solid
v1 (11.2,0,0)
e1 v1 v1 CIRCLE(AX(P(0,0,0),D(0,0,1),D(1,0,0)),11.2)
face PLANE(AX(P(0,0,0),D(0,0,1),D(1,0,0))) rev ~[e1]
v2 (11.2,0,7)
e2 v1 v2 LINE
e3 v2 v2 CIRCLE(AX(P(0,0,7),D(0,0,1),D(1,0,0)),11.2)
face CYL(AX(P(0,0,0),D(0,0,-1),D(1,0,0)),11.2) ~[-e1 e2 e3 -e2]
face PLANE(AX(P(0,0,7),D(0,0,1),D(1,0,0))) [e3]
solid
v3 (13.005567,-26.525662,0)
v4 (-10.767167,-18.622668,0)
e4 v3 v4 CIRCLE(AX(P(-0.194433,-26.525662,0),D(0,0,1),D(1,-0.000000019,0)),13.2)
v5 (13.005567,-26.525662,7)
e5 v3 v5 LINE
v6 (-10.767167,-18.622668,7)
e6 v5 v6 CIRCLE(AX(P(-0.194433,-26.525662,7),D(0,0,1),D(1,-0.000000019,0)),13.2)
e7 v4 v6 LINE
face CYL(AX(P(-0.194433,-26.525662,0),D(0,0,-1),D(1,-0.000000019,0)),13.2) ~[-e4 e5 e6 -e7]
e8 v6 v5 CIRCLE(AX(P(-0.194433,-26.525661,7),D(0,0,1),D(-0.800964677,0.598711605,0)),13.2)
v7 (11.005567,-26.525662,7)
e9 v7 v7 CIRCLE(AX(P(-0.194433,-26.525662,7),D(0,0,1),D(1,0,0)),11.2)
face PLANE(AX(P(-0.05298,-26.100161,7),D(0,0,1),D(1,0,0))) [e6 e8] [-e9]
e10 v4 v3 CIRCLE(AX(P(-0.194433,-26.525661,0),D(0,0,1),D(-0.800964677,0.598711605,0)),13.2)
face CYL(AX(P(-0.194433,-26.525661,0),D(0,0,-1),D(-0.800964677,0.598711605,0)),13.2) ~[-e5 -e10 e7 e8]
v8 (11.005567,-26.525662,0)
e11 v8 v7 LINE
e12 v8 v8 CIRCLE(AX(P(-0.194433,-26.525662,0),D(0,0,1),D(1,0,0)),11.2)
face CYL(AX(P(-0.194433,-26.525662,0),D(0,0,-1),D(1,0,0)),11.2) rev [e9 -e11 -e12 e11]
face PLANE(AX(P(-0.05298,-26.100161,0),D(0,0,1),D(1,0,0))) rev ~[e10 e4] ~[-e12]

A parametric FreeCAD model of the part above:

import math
import FreeCAD as App
import Part
import Sketcher
from FreeCAD import Vector
Q = App.Units.Quantity

doc = App.newDocument("Part")
body = doc.addObject("PartDesign::Body", "Body")
body.AllowCompound = True

sketch1 = body.newObject("Sketcher::SketchObject", "Sketch")
sketch1.AttachmentSupport = (doc.getObject("XY_Plane"), [""])
sketch1.MapMode = "FlatFace"
sketch1.addGeometry([
    Part.ArcOfCircle(Part.Circle(Vector(0, -27, 0), Vector(0, 0, 1), 13), math.radians(0), math.radians(143)),
    Part.ArcOfCircle(Part.Circle(Vector(0, -27, 0), Vector(0, 0, 1), 13), math.radians(143), math.radians(360)),
    Part.Circle(Vector(0, -27, 0), Vector(0, 0, 1), 11),
    Part.Circle(Vector(0, 0, 0), Vector(0, 0, 1), 11),
], False)
sketch1.addConstraint([
    Sketcher.Constraint("Tangent", 0, 1, 1, 2),
    Sketcher.Constraint("Coincident", 1, 1, 0, 2),
    Sketcher.Constraint("Coincident", 3, 3, -1, 1),
    Sketcher.Constraint("Coincident", 2, 3, 0, 3),
    Sketcher.Constraint("Equal", 2, 3),
    Sketcher.Constraint("Horizontal", 2, 3, 0, 1),
    Sketcher.Constraint("Diameter", 2, Q("22.4 mm")),
    Sketcher.Constraint("Radius", 0, Q("13.2 mm")),
    Sketcher.Constraint("DistanceY", 0, 3, -1, 1, Q("26.525662 mm")),
    Sketcher.Constraint("DistanceX", 0, 3, -1, 1, Q("0.194433 mm")),
    Sketcher.Constraint("DistanceX", 1, 1, -1, 1, Q("10.767167 mm")),
])
pad1 = body.newObject("PartDesign::Pad", "Pad")
pad1.Profile = sketch1
pad1.Length = 7

doc.recompute()
